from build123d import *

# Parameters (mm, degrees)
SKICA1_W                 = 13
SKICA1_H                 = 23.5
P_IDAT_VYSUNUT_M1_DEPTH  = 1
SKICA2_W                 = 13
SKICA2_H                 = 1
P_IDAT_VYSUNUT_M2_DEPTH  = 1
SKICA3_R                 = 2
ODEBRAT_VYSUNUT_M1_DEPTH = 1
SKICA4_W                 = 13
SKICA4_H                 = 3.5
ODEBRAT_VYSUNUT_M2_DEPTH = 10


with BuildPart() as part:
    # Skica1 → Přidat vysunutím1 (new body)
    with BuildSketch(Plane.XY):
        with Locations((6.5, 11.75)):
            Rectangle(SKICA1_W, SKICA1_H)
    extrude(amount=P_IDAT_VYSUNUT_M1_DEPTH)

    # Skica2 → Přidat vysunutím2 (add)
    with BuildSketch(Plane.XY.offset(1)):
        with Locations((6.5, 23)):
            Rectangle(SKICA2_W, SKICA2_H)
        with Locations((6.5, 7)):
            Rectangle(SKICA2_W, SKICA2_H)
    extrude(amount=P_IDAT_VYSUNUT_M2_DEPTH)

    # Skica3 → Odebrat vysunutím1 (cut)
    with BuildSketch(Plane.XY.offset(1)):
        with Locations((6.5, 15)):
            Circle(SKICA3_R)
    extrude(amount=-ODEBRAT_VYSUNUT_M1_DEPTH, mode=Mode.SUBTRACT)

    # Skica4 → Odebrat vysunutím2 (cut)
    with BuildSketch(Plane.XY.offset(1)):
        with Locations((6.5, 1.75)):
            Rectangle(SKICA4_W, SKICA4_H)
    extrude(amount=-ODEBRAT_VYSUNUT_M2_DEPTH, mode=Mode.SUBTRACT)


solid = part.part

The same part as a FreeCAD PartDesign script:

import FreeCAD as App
import Part
import Sketcher
from FreeCAD import Vector
Q = App.Units.Quantity


def add_polygon(sketch, points):
    """Adds a closed chain of lines whose ends are joined by coincident constraints."""
    first, n = sketch.GeometryCount, len(points)
    for a, b in zip(points, points[1:] + points[:1]):
        sketch.addGeometry(Part.LineSegment(App.Vector(*a, 0), App.Vector(*b, 0)), False)
    for i in range(n):
        sketch.addConstraint(Sketcher.Constraint("Coincident", first + i, 2, first + (i + 1) % n, 1))

doc = App.newDocument("Part")
body = doc.addObject("PartDesign::Body", "Body")

# Sketch on XY plane
sketch1 = body.newObject("Sketcher::SketchObject", "Sketch")
sketch1.AttachmentSupport = (doc.getObject("XY_Plane"), [""])
sketch1.MapMode = "FlatFace"
add_polygon(sketch1, [(0, 24), (0, 0), (13, 0), (13, 24)])  # lines 0-3
sketch1.addConstraint(Sketcher.Constraint("Vertical", 0))
sketch1.addConstraint(Sketcher.Constraint("Horizontal", 1))
sketch1.addConstraint(Sketcher.Constraint("Vertical", 2))
sketch1.addConstraint(Sketcher.Constraint("Horizontal", 3))
sketch1.addConstraint(Sketcher.Constraint("Coincident", 0, 2, -1, 1))
sketch1.addConstraint(Sketcher.Constraint("DistanceX", 1, 1, 1, 2, Q("13 mm")))
sketch1.addConstraint(Sketcher.Constraint("DistanceY", 0, 2, 0, 1, Q("23.5 mm")))
pad1 = body.newObject("PartDesign::Pad", "Pad")
pad1.Profile = sketch1
pad1.Length = 1

# Sketch on XY plane
sketch2 = body.newObject("Sketcher::SketchObject", "Sketch001")
sketch2.AttachmentSupport = (doc.getObject("XY_Plane"), [""])
sketch2.MapMode = "FlatFace"
sketch2.AttachmentOffset = App.Placement(Vector(0, 0, 1), App.Rotation())
add_polygon(sketch2, [(0, 23.5), (0, 22.5), (13, 22.5), (13, 23.5)])  # lines 0-3
add_polygon(sketch2, [(0, 7.5), (0, 6.5), (13, 6.5), (13, 7.5)])  # lines 4-7
sketch2.addConstraint(Sketcher.Constraint("Vertical", 0))
sketch2.addConstraint(Sketcher.Constraint("Horizontal", 1))
sketch2.addConstraint(Sketcher.Constraint("Vertical", 2))
sketch2.addConstraint(Sketcher.Constraint("Horizontal", 3))
sketch2.addConstraint(Sketcher.Constraint("Vertical", 4))
sketch2.addConstraint(Sketcher.Constraint("Horizontal", 5))
sketch2.addConstraint(Sketcher.Constraint("Vertical", 6))
sketch2.addConstraint(Sketcher.Constraint("Horizontal", 7))
sketch2.addConstraint(Sketcher.Constraint("PointOnObject", 0, 2, -2))
sketch2.addConstraint(Sketcher.Constraint("PointOnObject", 4, 2, -2))
sketch2.addConstraint(Sketcher.Constraint("Vertical", 2, 2, 5, 2))
sketch2.addConstraint(Sketcher.Constraint("Equal", 2, 4))
sketch2.addConstraint(Sketcher.Constraint("DistanceX", 1, 1, 1, 2, Q("13 mm")))
sketch2.addConstraint(Sketcher.Constraint("DistanceY", 0, 2, 0, 1, Q("1 mm")))
sketch2.addConstraint(Sketcher.Constraint("DistanceY", 4, 2, 0, 2, Q("16 mm")))
sketch2.addConstraint(Sketcher.Constraint("DistanceY", -1, 1, 0, 2, Q("22.5 mm")))
pad2 = body.newObject("PartDesign::Pad", "Pad001")
pad2.Profile = sketch2
pad2.Length = 1

# Sketch on XY plane
sketch3 = body.newObject("Sketcher::SketchObject", "Sketch002")
sketch3.AttachmentSupport = (doc.getObject("XY_Plane"), [""])
sketch3.MapMode = "FlatFace"
sketch3.AttachmentOffset = App.Placement(Vector(0, 0, 1), App.Rotation())
sketch3.addGeometry(Part.Circle(Vector(6.5, 15, 0), Vector(0, 0, 1), 2), False)
sketch3.addConstraint(Sketcher.Constraint("Diameter", 0, Q("4 mm")))
sketch3.addConstraint(Sketcher.Constraint("DistanceY", -1, 1, 0, 3, Q("15 mm")))
sketch3.addConstraint(Sketcher.Constraint("DistanceX", -1, 1, 0, 3, Q("6.5 mm")))
pocket1 = body.newObject("PartDesign::Pocket", "Pocket")
pocket1.Profile = sketch3
pocket1.Length = 1

# Sketch on XY plane
sketch4 = body.newObject("Sketcher::SketchObject", "Sketch003")
sketch4.AttachmentSupport = (doc.getObject("XY_Plane"), [""])
sketch4.MapMode = "FlatFace"
sketch4.AttachmentOffset = App.Placement(Vector(0, 0, 1), App.Rotation())
add_polygon(sketch4, [(0, 3.5), (0, 0), (13, 0), (13, 3.5)])  # lines 0-3
sketch4.addConstraint(Sketcher.Constraint("Vertical", 0))
sketch4.addConstraint(Sketcher.Constraint("Horizontal", 1))
sketch4.addConstraint(Sketcher.Constraint("Vertical", 2))
sketch4.addConstraint(Sketcher.Constraint("Horizontal", 3))
sketch4.addConstraint(Sketcher.Constraint("Coincident", 0, 2, -1, 1))
sketch4.addConstraint(Sketcher.Constraint("DistanceX", 1, 1, 1, 2, Q("13 mm")))
sketch4.addConstraint(Sketcher.Constraint("DistanceY", 0, 2, 0, 1, Q("3.5 mm")))
pocket2 = body.newObject("PartDesign::Pocket", "Pocket001")
pocket2.Profile = sketch4
pocket2.Length = 10

doc.recompute()
